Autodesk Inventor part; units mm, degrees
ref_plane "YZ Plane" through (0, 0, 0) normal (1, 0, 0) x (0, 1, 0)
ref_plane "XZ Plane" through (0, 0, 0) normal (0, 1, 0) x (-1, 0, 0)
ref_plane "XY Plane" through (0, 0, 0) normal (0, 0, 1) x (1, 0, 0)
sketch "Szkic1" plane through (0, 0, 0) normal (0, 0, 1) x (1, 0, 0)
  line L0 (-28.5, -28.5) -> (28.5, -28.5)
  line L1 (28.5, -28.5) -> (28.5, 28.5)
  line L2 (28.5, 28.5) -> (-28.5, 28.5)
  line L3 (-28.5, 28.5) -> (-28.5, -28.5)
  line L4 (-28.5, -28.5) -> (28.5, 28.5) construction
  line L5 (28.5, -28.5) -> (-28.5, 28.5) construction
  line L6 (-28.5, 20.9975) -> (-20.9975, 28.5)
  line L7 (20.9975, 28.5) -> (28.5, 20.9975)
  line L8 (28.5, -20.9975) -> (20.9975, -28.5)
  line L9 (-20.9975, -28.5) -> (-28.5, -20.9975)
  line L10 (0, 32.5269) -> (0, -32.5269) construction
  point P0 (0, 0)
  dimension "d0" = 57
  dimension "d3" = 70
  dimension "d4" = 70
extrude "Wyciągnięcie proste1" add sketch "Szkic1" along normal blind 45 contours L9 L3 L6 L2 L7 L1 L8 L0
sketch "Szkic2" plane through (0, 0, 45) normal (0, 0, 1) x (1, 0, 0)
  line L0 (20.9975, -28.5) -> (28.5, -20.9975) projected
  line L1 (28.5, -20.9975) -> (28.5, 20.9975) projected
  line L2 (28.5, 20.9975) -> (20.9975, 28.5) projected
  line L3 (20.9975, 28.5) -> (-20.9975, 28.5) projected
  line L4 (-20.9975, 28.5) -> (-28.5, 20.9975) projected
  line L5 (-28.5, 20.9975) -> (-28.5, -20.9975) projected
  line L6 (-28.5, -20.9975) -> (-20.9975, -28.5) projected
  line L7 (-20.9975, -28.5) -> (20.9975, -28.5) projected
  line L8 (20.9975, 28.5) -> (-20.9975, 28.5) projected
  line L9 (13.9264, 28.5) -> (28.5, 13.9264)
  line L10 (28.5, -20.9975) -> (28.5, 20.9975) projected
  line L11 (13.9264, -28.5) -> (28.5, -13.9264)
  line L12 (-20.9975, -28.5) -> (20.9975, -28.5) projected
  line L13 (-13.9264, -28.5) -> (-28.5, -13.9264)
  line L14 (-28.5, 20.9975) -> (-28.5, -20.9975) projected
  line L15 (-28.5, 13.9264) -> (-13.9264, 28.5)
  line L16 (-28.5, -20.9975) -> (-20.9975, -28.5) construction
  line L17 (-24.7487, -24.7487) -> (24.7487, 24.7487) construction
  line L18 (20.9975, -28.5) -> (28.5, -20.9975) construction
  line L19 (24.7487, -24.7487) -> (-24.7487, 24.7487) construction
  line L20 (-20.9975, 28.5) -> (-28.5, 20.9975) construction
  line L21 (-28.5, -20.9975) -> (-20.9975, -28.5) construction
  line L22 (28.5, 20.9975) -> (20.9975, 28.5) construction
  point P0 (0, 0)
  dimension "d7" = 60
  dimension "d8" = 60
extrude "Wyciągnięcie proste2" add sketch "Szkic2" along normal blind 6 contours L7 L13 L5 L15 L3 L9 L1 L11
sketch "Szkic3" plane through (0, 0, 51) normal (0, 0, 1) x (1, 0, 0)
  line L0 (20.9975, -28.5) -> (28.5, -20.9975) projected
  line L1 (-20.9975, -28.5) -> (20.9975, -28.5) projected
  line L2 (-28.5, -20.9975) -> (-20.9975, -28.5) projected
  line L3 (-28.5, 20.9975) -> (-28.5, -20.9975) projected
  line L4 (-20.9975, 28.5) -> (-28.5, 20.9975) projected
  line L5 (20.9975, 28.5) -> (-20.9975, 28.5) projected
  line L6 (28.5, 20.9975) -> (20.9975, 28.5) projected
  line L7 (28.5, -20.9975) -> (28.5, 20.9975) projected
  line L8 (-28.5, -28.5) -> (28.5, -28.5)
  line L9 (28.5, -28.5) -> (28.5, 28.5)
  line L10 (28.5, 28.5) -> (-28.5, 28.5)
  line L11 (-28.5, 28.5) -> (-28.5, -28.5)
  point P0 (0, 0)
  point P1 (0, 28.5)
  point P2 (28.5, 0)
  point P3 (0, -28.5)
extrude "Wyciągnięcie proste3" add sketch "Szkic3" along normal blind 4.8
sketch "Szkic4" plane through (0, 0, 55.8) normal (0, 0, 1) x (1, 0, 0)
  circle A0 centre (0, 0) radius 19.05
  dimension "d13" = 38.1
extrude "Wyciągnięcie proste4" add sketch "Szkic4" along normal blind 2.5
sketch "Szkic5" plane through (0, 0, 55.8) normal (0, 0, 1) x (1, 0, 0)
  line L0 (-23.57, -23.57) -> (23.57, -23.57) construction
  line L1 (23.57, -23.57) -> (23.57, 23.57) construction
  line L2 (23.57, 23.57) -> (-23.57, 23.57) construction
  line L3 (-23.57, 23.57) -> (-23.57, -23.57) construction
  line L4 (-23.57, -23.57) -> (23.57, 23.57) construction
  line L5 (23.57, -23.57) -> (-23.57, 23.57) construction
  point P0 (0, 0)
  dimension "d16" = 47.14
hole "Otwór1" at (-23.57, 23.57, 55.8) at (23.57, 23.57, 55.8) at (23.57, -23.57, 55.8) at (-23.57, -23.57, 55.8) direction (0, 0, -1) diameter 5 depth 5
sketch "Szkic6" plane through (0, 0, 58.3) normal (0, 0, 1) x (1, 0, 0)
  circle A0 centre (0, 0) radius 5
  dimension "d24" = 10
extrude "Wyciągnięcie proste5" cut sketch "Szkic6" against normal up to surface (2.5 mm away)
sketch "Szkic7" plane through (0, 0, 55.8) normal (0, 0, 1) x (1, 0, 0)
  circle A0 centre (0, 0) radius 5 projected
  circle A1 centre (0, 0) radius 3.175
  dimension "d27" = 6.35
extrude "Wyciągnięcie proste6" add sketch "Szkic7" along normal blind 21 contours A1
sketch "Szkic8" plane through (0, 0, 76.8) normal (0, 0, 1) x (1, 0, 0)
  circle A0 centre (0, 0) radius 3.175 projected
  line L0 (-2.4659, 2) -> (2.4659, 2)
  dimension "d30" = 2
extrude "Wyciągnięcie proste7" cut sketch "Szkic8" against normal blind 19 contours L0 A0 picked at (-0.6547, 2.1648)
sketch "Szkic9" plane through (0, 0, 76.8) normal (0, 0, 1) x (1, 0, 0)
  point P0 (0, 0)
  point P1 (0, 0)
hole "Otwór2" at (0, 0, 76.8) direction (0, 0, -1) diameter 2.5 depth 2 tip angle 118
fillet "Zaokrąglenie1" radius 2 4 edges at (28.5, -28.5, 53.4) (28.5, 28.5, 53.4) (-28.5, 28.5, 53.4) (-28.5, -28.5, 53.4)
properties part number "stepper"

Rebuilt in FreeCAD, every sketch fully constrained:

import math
import FreeCAD as App
import Part
import Sketcher

V = App.Vector


def edges_at(feature, points):
    """Names of the edges that pass closest to the given points."""
    edges = feature.Shape.Edges
    near = lambda p: min(range(len(edges)), key=lambda i: edges[i].distToShape(Part.Vertex(*p))[0])
    return sorted({f"Edge{near(p) + 1}" for p in points})


def add_polygon(sketch, points):
    """Adds a closed chain of lines whose ends are joined by coincident constraints."""
    first, n = sketch.GeometryCount, len(points)
    for a, b in zip(points, points[1:] + points[:1]):
        sketch.addGeometry(Part.LineSegment(App.Vector(*a, 0), App.Vector(*b, 0)), False)
    for i in range(n):
        sketch.addConstraint(Sketcher.Constraint("Coincident", first + i, 2, first + (i + 1) % n, 1))

doc = App.newDocument("Part")
params = doc.addObject("Spreadsheet::Sheet", "Params")
for row, (alias, value) in enumerate([
    ("pad1_length", "45 mm"),
    ("pad2_length", "6 mm"),
    ("sketch3_width", "57 mm"),
    ("pad3_length", "4.8 mm"),
    ("sketch4_diameter", "38.1 mm"),
    ("pad4_length", "2.5 mm"),
    ("sketch5_diameter", "5 mm"),
    ("hole_diameter", "5 mm"),
    ("hole_depth", "5 mm"),
    ("sketch6_diameter", "10 mm"),
    ("pocket1_length", "2.5 mm"),
    ("sketch7_diameter", "6.35 mm"),
    ("pad5_length", "21 mm"),
    ("pocket2_length", "19 mm"),
    ("sketch9_diameter", "2.5 mm"),
    ("hole2_diameter", "2.5 mm"),
    ("hole2_depth", "2 mm"),
    ("fillet_radius", "2 mm"),
], start=1):
    params.set(f"A{row}", alias)
    params.set(f"B{row}", "=" + value)
    params.setAlias(f"B{row}", alias)

body = doc.addObject("PartDesign::Body", "Body")

# Sketch on XY plane
sketch1 = doc.addObject("Sketcher::SketchObject", "Sketch")
body.addObject(sketch1)
sketch1.AttachmentSupport = (doc.XY_Plane, [""])
sketch1.MapMode = "FlatFace"
add_polygon(sketch1, [(-28, -21), (-21, -28), (21, -28), (28, -21), (28, 21), (21, 28), (-21, 28), (-28, 21)])  # lines 0-7
sketch1.addConstraint([
    Sketcher.Constraint("Horizontal", 1),
    Sketcher.Constraint("Vertical", 3),
    Sketcher.Constraint("Horizontal", 5),
    Sketcher.Constraint("Vertical", 7),
    Sketcher.Constraint("Symmetric", 0, 2, 4, 2, -1, 1),
    Sketcher.Constraint("Symmetric", 2, 2, 6, 2, -1, 1),
    Sketcher.Constraint("Perpendicular", 0, 2),
    Sketcher.Constraint("Perpendicular", 2, 4),
    Sketcher.Constraint("Perpendicular", 4, 6),
    Sketcher.Constraint("Horizontal", 3, 2, 6, 2),
    Sketcher.Constraint("Vertical", 1, 2, 4, 2),
    Sketcher.Constraint("Equal", 5, 3),
    Sketcher.Constraint("DistanceY", 1, 2, 4, 2, 57.0),
    Sketcher.Constraint("DistanceX", 1, 1, 1, 2, 41.995),
])
pad1 = doc.addObject("PartDesign::Pad", "Pad")
body.addObject(pad1)
pad1.Profile = sketch1
pad1.setExpression("Length", "Params.pad1_length")

# Sketch on XY plane
sketch2 = doc.addObject("Sketcher::SketchObject", "Sketch001")
body.addObject(sketch2)
sketch2.AttachmentSupport = (doc.XY_Plane, [""])
sketch2.MapMode = "FlatFace"
sketch2.AttachmentOffset = App.Placement(V(0, 0, 45), App.Rotation())
add_polygon(sketch2, [(-14, -28), (14, -28), (28, -14), (28, 14), (14, 28), (-14, 28), (-28, 14), (-28, -14)])  # lines 0-7
sketch2.addConstraint([
    Sketcher.Constraint("Horizontal", 0),
    Sketcher.Constraint("Vertical", 2),
    Sketcher.Constraint("Horizontal", 4),
    Sketcher.Constraint("Vertical", 6),
    Sketcher.Constraint("Symmetric", 0, 2, 4, 2, -1, 1),
    Sketcher.Constraint("Symmetric", 1, 2, 5, 2, -1, 1),
    Sketcher.Constraint("Perpendicular", 1, 3),
    Sketcher.Constraint("Perpendicular", 5, 7),
    Sketcher.Constraint("Horizontal", 2, 2, 5, 2),
    Sketcher.Constraint("Horizontal", 1, 2, 6, 2),
    Sketcher.Constraint("Vertical", 0, 2, 3, 2),
    Sketcher.Constraint("Equal", 4, 2),
    Sketcher.Constraint("DistanceY", 0, 2, 3, 2, 57.0),
    Sketcher.Constraint("DistanceX", 0, 1, 0, 2, 27.8528),
])
pad2 = doc.addObject("PartDesign::Pad", "Pad001")
body.addObject(pad2)
pad2.Profile = sketch2
pad2.setExpression("Length", "Params.pad2_length")

# Sketch on XY plane
sketch3 = doc.addObject("Sketcher::SketchObject", "Sketch002")
body.addObject(sketch3)
sketch3.AttachmentSupport = (doc.XY_Plane, [""])
sketch3.MapMode = "FlatFace"
sketch3.AttachmentOffset = App.Placement(V(0, 0, 51), App.Rotation())
add_polygon(sketch3, [(28, -28), (28, 28), (-28, 28), (-28, -28)])  # lines 0-3
sketch3.addConstraint([
    Sketcher.Constraint("Vertical", 0),
    Sketcher.Constraint("Horizontal", 1),
    Sketcher.Constraint("Vertical", 2),
    Sketcher.Constraint("Horizontal", 3),
    Sketcher.Constraint("Symmetric", 0, 2, 2, 2, -1, 1),
    Sketcher.Constraint("Equal", 3, 0),
    Sketcher.Constraint("DistanceX", 1, 2, 1, 1, 57.0),
])
sketch3.setExpression("Constraints[10]", "Params.sketch3_width")
pad3 = doc.addObject("PartDesign::Pad", "Pad002")
body.addObject(pad3)
pad3.Profile = sketch3
pad3.setExpression("Length", "Params.pad3_length")

# Sketch on XY plane
sketch4 = doc.addObject("Sketcher::SketchObject", "Sketch003")
body.addObject(sketch4)
sketch4.AttachmentSupport = (doc.XY_Plane, [""])
sketch4.MapMode = "FlatFace"
sketch4.AttachmentOffset = App.Placement(V(0, 0, 55.8), App.Rotation())
sketch4.addGeometry(Part.Circle(V(0, 0, 0), V(0, 0, 1), 19), False)
sketch4.addConstraint([
    Sketcher.Constraint("Coincident", 0, 3, -1, 1),
    Sketcher.Constraint("Diameter", 0, 38.1),
])
sketch4.setExpression("Constraints[1]", "Params.sketch4_diameter")
pad4 = doc.addObject("PartDesign::Pad", "Pad003")
body.addObject(pad4)
pad4.Profile = sketch4
pad4.setExpression("Length", "Params.pad4_length")

# Sketch on XY plane
sketch5 = doc.addObject("Sketcher::SketchObject", "Sketch004")
body.addObject(sketch5)
sketch5.AttachmentSupport = (doc.XY_Plane, [""])
sketch5.MapMode = "FlatFace"
sketch5.AttachmentOffset = App.Placement(V(0, 0, 55.8), App.Rotation())
sketch5.addGeometry([
    Part.Circle(V(-23.6, 23.6, 0), V(0, 0, 1), 2.5),
    Part.Circle(V(23.6, 23.6, 0), V(0, 0, 1), 2.5),
    Part.Circle(V(23.6, -23.6, 0), V(0, 0, 1), 2.5),
    Part.Circle(V(-23.6, -23.6, 0), V(0, 0, 1), 2.5),
], False)
sketch5.addConstraint([
    Sketcher.Constraint("Equal", 0, 1),
    Sketcher.Constraint("Equal", 1, 2),
    Sketcher.Constraint("Equal", 2, 3),
    Sketcher.Constraint("Symmetric", 0, 3, 2, 3, -1, 1),
    Sketcher.Constraint("Symmetric", 1, 3, 3, 3, -1, 1),
    Sketcher.Constraint("Symmetric", 0, 3, 1, 3, -2),
    Sketcher.Constraint("Diameter", 0, 5.0),
    Sketcher.Constraint("DistanceX", 0, 3, -1, 1, 23.57),
    Sketcher.Constraint("DistanceY", -1, 1, 0, 3, 23.57),
])
sketch5.setExpression("Constraints[6]", "Params.sketch5_diameter")
doc.recompute()
hole = doc.addObject("PartDesign::Hole", "Hole")
body.addObject(hole)
hole.Profile = sketch5
hole.ThreadType = "None"
hole.setExpression("Diameter", "Params.hole_diameter")
hole.DepthType = "Dimension"
hole.setExpression("Depth", "Params.hole_depth")
hole.DrillPoint = "Flat"

# Sketch on XY plane
sketch6 = doc.addObject("Sketcher::SketchObject", "Sketch005")
body.addObject(sketch6)
sketch6.AttachmentSupport = (doc.XY_Plane, [""])
sketch6.MapMode = "FlatFace"
sketch6.AttachmentOffset = App.Placement(V(0, 0, 58.3), App.Rotation())
sketch6.addGeometry(Part.Circle(V(0, 0, 0), V(0, 0, 1), 5), False)
sketch6.addConstraint([
    Sketcher.Constraint("Coincident", 0, 3, -1, 1),
    Sketcher.Constraint("Diameter", 0, 10.0),
])
sketch6.setExpression("Constraints[1]", "Params.sketch6_diameter")
pocket1 = doc.addObject("PartDesign::Pocket", "Pocket")
body.addObject(pocket1)
pocket1.Profile = sketch6
pocket1.setExpression("Length", "Params.pocket1_length")

# Sketch on XY plane
sketch7 = doc.addObject("Sketcher::SketchObject", "Sketch006")
body.addObject(sketch7)
sketch7.AttachmentSupport = (doc.XY_Plane, [""])
sketch7.MapMode = "FlatFace"
sketch7.AttachmentOffset = App.Placement(V(0, 0, 55.8), App.Rotation())
sketch7.addGeometry(Part.Circle(V(0, 0, 0), V(0, 0, 1), 3.2), False)
sketch7.addConstraint([
    Sketcher.Constraint("Coincident", 0, 3, -1, 1),
    Sketcher.Constraint("Diameter", 0, 6.35),
])
sketch7.setExpression("Constraints[1]", "Params.sketch7_diameter")
pad5 = doc.addObject("PartDesign::Pad", "Pad004")
body.addObject(pad5)
pad5.Profile = sketch7
pad5.setExpression("Length", "Params.pad5_length")

# Sketch on XY plane
sketch8 = doc.addObject("Sketcher::SketchObject", "Sketch007")
body.addObject(sketch8)
sketch8.AttachmentSupport = (doc.XY_Plane, [""])
sketch8.MapMode = "FlatFace"
sketch8.AttachmentOffset = App.Placement(V(0, 0, 76.8), App.Rotation())
sketch8.addGeometry([
    Part.LineSegment(V(-2.5, 2, 0), V(2.5, 2, 0)),
    Part.ArcOfCircle(Part.Circle(V(0, 0, 0), V(0, 0, 1), 3.2), math.radians(39), math.radians(141)),
], False)
sketch8.addConstraint([
    Sketcher.Constraint("Coincident", 0, 1, 1, 2),
    Sketcher.Constraint("Coincident", 1, 1, 0, 2),
    Sketcher.Constraint("Horizontal", 0),
    Sketcher.Constraint("Coincident", 1, 3, -1, 1),
    Sketcher.Constraint("DistanceY", -1, 1, 0, 1, 2.0),
    Sketcher.Constraint("Radius", 1, 3.175),
])
pocket2 = doc.addObject("PartDesign::Pocket", "Pocket001")
body.addObject(pocket2)
pocket2.Profile = sketch8
pocket2.setExpression("Length", "Params.pocket2_length")

# Sketch on XY plane
sketch9 = doc.addObject("Sketcher::SketchObject", "Sketch008")
body.addObject(sketch9)
sketch9.AttachmentSupport = (doc.XY_Plane, [""])
sketch9.MapMode = "FlatFace"
sketch9.AttachmentOffset = App.Placement(V(0, 0, 76.8), App.Rotation())
sketch9.addGeometry(Part.Circle(V(0, 0, 0), V(0, 0, 1), 1.2), False)
sketch9.addConstraint([
    Sketcher.Constraint("Coincident", 0, 3, -1, 1),
    Sketcher.Constraint("Diameter", 0, 2.5),
])
sketch9.setExpression("Constraints[1]", "Params.sketch9_diameter")
doc.recompute()
hole2 = doc.addObject("PartDesign::Hole", "Hole001")
body.addObject(hole2)
hole2.Profile = sketch9
hole2.ThreadType = "None"
hole2.setExpression("Diameter", "Params.hole2_diameter")
hole2.DepthType = "Dimension"
hole2.setExpression("Depth", "Params.hole2_depth")
hole2.DrillPoint = "Angled"
hole2.DrillPointAngle = 118
doc.recompute()

fillet = doc.addObject("PartDesign::Fillet", "Fillet")
body.addObject(fillet)
fillet.Base = (hole2, edges_at(hole2, [
    (28.5, -28.5, 53.4),
    (28.5, 28.5, 53.4),
    (-28.5, 28.5, 53.4),
    (-28.5, -28.5, 53.4),
]))
fillet.setExpression("Radius", "Params.fillet_radius")

doc.recompute()
